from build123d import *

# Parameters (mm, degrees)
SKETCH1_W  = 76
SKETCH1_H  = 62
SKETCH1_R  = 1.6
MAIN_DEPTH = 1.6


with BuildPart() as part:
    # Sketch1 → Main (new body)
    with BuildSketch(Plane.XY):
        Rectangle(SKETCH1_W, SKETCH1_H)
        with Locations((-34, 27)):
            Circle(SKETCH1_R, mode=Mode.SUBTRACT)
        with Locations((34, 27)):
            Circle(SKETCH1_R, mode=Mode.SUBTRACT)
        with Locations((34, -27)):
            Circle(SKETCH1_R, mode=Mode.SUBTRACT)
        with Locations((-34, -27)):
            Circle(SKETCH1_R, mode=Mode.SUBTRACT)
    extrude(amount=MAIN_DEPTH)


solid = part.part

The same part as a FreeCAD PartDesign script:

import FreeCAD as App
import Part
import Sketcher
from FreeCAD import Vector
Q = App.Units.Quantity


def add_polygon(sketch, points):
    """Adds a closed chain of lines whose ends are joined by coincident constraints."""
    first, n = sketch.GeometryCount, len(points)
    for a, b in zip(points, points[1:] + points[:1]):
        sketch.addGeometry(Part.LineSegment(App.Vector(*a, 0), App.Vector(*b, 0)), False)
    for i in range(n):
        sketch.addConstraint(Sketcher.Constraint("Coincident", first + i, 2, first + (i + 1) % n, 1))

doc = App.newDocument("Part")
body = doc.addObject("PartDesign::Body", "Body")

# Sketch on XY plane
sketch1 = body.newObject("Sketcher::SketchObject", "Sketch")
sketch1.AttachmentSupport = (doc.getObject("XY_Plane"), [""])
sketch1.MapMode = "FlatFace"
add_polygon(sketch1, [(-38, 31), (-38, -31), (38, -31), (38, 31)])  # lines 0-3
sketch1.addGeometry(Part.Circle(Vector(-34, -27, 0), Vector(0, 0, 1), 1.6), False)  # 4
sketch1.addGeometry(Part.Circle(Vector(34, -27, 0), Vector(0, 0, 1), 1.6), False)  # 5
sketch1.addGeometry(Part.Circle(Vector(-34, 27, 0), Vector(0, 0, 1), 1.6), False)  # 6
sketch1.addGeometry(Part.Circle(Vector(34, 27, 0), Vector(0, 0, 1), 1.6), False)  # 7
sketch1.addConstraint(Sketcher.Constraint("Vertical", 0))
sketch1.addConstraint(Sketcher.Constraint("Horizontal", 1))
sketch1.addConstraint(Sketcher.Constraint("Vertical", 2))
sketch1.addConstraint(Sketcher.Constraint("Horizontal", 3))
sketch1.addConstraint(Sketcher.Constraint("Equal", 4, 5))
sketch1.addConstraint(Sketcher.Constraint("Equal", 5, 6))
sketch1.addConstraint(Sketcher.Constraint("Equal", 6, 7))
sketch1.addConstraint(Sketcher.Constraint("Symmetric", 5, 3, 6, 3, -1, 1))
sketch1.addConstraint(Sketcher.Constraint("Symmetric", 4, 3, 7, 3, -1, 1))
sketch1.addConstraint(Sketcher.Constraint("Symmetric", 0, 2, 2, 2, -1, 1))
sketch1.addConstraint(Sketcher.Constraint("Symmetric", 4, 3, 5, 3, -2))
sketch1.addConstraint(Sketcher.Constraint("Diameter", 4, Q("3.2 mm")))
sketch1.addConstraint(Sketcher.Constraint("DistanceX", 1, 1, 1, 2, Q("76 mm")))
sketch1.addConstraint(Sketcher.Constraint("DistanceY", 0, 2, 0, 1, Q("62 mm")))
sketch1.addConstraint(Sketcher.Constraint("DistanceX", 4, 3, -1, 1, Q("34 mm")))
sketch1.addConstraint(Sketcher.Constraint("DistanceY", 4, 3, -1, 1, Q("27 mm")))
pad1 = body.newObject("PartDesign::Pad", "Pad")
pad1.Profile = sketch1
pad1.Length = 1.6

doc.recompute()
